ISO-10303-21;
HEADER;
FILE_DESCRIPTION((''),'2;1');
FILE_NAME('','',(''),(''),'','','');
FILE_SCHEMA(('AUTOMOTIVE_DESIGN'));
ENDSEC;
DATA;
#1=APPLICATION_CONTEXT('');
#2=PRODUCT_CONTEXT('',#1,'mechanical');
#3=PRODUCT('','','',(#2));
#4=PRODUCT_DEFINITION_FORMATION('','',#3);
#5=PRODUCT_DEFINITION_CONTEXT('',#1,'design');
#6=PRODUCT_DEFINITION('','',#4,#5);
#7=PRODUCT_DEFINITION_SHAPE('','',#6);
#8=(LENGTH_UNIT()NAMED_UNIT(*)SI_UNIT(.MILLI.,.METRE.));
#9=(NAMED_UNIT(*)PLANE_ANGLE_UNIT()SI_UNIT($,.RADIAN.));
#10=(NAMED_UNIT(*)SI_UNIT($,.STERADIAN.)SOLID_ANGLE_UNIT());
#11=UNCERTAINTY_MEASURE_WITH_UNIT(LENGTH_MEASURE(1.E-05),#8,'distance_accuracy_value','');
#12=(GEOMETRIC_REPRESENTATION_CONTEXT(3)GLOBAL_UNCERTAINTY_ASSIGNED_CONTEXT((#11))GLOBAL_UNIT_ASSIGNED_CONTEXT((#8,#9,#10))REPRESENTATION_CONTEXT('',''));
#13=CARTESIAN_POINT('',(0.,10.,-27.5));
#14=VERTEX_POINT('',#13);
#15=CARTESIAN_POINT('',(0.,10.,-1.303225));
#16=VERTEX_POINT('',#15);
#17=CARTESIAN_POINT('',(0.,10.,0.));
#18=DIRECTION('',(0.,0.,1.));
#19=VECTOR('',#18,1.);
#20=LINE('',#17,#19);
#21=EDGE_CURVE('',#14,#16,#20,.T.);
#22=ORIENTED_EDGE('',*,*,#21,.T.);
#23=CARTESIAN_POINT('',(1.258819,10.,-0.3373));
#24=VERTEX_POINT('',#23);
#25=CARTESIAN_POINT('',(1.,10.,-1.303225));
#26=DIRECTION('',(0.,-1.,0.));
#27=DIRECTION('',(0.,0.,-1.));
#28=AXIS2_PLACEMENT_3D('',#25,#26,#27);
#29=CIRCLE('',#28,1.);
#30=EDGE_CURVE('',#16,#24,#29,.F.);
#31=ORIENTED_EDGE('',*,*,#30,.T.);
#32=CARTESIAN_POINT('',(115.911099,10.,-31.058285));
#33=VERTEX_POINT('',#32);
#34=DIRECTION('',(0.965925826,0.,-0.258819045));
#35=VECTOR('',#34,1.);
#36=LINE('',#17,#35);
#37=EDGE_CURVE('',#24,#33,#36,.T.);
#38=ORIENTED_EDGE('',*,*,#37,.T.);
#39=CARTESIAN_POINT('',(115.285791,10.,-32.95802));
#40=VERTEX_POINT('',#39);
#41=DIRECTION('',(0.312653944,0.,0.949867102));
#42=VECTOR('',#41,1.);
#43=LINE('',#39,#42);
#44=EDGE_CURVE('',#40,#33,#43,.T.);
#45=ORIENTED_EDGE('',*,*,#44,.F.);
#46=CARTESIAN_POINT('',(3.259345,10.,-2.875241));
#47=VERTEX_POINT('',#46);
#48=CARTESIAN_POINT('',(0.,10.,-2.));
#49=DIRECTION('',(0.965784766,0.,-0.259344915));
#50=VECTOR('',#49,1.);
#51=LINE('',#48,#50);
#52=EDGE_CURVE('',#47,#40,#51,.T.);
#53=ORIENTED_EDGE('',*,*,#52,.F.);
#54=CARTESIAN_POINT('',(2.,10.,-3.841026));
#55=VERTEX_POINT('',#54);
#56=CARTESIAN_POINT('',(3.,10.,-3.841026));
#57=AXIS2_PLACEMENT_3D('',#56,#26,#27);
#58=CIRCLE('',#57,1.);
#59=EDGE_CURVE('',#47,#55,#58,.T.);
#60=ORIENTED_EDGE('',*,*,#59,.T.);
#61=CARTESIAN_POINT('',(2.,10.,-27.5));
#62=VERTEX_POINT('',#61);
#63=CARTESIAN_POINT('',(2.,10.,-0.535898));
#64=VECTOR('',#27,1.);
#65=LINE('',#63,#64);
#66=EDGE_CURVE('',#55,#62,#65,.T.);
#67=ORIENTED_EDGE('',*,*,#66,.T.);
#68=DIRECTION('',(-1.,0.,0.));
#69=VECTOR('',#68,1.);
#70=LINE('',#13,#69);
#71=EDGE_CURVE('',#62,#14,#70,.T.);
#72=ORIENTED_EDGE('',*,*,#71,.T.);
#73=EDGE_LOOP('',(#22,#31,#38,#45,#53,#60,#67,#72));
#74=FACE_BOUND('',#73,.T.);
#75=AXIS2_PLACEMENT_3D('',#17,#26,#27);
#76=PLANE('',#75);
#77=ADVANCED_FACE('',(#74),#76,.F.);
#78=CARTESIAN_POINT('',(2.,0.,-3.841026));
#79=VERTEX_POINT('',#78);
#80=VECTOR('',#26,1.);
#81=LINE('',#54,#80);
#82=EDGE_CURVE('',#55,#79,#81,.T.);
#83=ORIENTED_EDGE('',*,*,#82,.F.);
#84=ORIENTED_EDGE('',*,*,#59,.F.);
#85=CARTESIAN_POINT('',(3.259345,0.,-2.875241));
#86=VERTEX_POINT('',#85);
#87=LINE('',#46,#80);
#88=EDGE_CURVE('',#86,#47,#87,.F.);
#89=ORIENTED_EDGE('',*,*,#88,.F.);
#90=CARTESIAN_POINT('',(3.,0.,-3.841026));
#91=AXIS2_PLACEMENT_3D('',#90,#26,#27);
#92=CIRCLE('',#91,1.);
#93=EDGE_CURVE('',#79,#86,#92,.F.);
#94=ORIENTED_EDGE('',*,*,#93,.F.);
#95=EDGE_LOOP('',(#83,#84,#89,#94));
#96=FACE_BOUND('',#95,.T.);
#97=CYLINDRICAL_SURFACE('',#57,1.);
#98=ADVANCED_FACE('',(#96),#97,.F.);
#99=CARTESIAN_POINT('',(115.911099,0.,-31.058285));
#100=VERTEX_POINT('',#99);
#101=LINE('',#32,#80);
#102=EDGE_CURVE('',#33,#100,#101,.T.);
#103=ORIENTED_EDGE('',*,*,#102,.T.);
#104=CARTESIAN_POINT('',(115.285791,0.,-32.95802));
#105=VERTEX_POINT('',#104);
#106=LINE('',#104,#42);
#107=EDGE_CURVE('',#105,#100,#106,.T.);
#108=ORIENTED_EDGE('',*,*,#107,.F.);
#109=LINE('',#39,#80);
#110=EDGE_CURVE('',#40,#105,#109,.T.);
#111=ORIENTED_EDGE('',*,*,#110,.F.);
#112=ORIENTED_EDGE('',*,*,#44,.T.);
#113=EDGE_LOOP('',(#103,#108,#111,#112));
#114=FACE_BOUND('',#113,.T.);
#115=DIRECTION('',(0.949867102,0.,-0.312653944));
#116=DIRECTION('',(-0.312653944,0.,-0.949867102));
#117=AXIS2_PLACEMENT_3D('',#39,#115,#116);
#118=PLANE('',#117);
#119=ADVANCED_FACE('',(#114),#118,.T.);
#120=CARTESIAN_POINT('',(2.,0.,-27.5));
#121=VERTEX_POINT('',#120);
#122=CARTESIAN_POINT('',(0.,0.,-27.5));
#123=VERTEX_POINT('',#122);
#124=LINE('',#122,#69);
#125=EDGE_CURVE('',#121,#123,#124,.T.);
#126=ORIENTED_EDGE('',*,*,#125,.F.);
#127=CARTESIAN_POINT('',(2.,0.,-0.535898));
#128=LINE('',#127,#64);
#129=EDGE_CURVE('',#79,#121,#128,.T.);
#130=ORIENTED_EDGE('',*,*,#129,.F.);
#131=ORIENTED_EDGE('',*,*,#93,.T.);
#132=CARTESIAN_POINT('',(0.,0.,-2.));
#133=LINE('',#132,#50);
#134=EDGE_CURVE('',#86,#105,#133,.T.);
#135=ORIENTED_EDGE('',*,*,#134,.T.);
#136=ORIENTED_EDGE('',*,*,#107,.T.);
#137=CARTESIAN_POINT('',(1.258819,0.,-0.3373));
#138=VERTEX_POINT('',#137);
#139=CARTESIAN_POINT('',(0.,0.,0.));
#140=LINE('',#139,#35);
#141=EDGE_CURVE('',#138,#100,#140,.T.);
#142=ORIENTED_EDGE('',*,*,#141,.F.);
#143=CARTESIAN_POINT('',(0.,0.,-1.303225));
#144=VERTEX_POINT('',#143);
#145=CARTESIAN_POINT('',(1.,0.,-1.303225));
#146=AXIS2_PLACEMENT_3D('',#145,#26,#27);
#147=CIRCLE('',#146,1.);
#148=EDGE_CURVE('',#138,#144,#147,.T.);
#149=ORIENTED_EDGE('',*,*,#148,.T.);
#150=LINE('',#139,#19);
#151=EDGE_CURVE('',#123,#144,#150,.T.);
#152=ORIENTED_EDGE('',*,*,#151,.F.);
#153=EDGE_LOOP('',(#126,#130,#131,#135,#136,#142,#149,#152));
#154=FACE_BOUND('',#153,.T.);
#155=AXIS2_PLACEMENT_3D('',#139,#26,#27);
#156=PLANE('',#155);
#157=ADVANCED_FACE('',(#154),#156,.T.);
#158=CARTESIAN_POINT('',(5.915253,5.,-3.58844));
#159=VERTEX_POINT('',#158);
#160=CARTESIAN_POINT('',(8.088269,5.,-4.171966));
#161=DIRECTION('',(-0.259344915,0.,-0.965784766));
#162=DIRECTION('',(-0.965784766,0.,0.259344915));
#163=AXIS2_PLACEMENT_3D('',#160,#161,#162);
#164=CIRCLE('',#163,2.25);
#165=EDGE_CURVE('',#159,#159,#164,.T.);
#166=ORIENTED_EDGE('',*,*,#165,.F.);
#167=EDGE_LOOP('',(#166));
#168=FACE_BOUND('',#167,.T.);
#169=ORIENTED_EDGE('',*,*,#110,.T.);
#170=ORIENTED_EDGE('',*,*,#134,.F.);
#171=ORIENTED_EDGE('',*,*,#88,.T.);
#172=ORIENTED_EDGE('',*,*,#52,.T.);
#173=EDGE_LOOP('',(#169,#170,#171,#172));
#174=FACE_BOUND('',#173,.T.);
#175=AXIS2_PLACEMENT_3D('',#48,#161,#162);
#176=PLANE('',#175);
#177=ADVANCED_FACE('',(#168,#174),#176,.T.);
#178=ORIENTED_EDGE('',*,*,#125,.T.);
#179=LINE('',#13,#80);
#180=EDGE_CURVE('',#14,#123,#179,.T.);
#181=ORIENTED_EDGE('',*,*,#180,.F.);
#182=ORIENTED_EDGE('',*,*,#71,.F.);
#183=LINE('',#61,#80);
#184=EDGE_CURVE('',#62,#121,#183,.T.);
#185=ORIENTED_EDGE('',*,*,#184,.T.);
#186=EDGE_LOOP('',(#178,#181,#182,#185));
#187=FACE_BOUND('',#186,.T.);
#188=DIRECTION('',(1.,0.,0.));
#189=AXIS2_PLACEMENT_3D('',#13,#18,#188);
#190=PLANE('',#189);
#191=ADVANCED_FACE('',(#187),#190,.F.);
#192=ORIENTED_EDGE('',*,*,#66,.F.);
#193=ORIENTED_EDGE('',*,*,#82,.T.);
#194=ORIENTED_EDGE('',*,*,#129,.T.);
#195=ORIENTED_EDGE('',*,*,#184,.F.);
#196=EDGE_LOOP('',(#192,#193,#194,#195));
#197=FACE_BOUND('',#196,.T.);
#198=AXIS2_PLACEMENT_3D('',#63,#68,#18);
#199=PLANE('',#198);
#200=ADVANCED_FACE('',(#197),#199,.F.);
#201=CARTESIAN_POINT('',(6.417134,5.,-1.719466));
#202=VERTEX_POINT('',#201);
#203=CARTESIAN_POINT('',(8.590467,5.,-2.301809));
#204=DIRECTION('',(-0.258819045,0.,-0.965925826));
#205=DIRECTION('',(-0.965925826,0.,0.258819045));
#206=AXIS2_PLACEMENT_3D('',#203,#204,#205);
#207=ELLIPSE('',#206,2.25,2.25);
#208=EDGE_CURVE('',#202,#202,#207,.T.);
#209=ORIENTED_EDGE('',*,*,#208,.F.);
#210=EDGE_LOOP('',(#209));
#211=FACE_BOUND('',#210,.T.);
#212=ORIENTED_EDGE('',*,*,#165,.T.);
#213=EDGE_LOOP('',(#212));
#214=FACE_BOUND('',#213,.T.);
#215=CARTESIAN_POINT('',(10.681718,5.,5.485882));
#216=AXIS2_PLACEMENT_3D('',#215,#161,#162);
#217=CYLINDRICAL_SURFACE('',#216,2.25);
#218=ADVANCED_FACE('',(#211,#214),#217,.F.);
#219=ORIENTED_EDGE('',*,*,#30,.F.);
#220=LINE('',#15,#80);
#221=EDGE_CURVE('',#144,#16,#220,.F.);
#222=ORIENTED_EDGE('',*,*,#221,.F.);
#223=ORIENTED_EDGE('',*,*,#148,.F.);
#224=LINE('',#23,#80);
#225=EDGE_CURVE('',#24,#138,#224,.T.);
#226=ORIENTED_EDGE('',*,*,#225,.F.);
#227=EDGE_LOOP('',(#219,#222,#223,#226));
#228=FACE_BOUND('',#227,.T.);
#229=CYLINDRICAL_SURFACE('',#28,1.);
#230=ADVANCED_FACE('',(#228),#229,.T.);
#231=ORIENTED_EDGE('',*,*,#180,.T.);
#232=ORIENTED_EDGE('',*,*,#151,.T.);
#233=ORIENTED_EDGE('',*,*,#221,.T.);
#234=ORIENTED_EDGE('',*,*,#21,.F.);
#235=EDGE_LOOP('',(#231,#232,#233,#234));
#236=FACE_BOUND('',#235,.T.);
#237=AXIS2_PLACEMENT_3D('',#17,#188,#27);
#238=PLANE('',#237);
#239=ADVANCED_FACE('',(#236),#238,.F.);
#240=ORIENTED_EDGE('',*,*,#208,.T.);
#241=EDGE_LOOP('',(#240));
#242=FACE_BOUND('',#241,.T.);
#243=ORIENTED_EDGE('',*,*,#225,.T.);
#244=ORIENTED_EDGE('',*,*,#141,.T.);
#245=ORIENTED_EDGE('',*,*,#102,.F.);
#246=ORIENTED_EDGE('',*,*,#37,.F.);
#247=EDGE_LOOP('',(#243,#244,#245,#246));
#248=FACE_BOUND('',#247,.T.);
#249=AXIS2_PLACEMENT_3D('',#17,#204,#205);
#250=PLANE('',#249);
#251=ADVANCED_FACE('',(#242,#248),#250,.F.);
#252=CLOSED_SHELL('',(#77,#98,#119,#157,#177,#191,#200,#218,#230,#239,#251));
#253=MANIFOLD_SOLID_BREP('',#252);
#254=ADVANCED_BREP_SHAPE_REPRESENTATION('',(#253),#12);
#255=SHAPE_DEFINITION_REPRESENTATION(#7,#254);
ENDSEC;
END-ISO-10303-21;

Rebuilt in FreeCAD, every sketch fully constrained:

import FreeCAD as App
import Part
import Sketcher
Q = App.Units.Quantity


def edges_at(feature, points):
    """Names of the edges that pass closest to the given points."""
    edges = feature.Shape.Edges
    near = lambda p: min(range(len(edges)), key=lambda i: edges[i].distToShape(Part.Vertex(*p))[0])
    return sorted({f"Edge{near(p) + 1}" for p in points})

doc = App.newDocument("Part")
body = doc.addObject("PartDesign::Body", "Body")

# Sketch on XZ plane
sketch1 = body.newObject("Sketcher::SketchObject", "Sketch")
sketch1.AttachmentSupport = (doc.getObject("XZ_Plane"), [""])
sketch1.MapMode = "FlatFace"
sketch1.addGeometry([
    Part.LineSegment(App.Vector(0, 0, 0), App.Vector(2, -0.5, 0)),
    Part.LineSegment(App.Vector(2, -0.5, 0), App.Vector(2, -27.5, 0)),
    Part.LineSegment(App.Vector(2, -27.5, 0), App.Vector(0, -27.5, 0)),
    Part.LineSegment(App.Vector(0, -27.5, 0), App.Vector(0, 0, 0)),
], False)
sketch1.addConstraint([
    Sketcher.Constraint("Coincident", 0, 2, 1, 1),
    Sketcher.Constraint("Coincident", 1, 2, 2, 1),
    Sketcher.Constraint("Coincident", 2, 2, 3, 1),
    Sketcher.Constraint("Coincident", 3, 2, 0, 1),
    Sketcher.Constraint("Vertical", 1),
    Sketcher.Constraint("Horizontal", 2),
    Sketcher.Constraint("Vertical", 3),
    Sketcher.Constraint("Coincident", 3, 2, -1, 1),
    Sketcher.Constraint("DistanceX", 2, 2, 2, 1, Q("2 mm")),
    Sketcher.Constraint("Angle", 0, Q("-15 deg")),
    Sketcher.Constraint("DistanceY", 3, 1, 3, 2, Q("27.5 mm")),
])
pad1 = body.newObject("PartDesign::Pad", "Pad")
pad1.Profile = sketch1
pad1.Length = 10
pad1.Reversed = True

# Sketch on XZ plane
sketch2 = body.newObject("Sketcher::SketchObject", "Sketch001")
sketch2.AttachmentSupport = (doc.getObject("XZ_Plane"), [""])
sketch2.MapMode = "FlatFace"
sketch2.addGeometry([
    Part.LineSegment(App.Vector(115.9, -31.1, 0), App.Vector(0, 0, 0)),
    Part.LineSegment(App.Vector(0, 0, 0), App.Vector(0, -2, 0)),
    Part.LineSegment(App.Vector(0, -2, 0), App.Vector(115.3, -33, 0)),
    Part.LineSegment(App.Vector(115.3, -33, 0), App.Vector(115.9, -31.1, 0)),
], False)
sketch2.addConstraint([
    Sketcher.Constraint("Coincident", 0, 2, 1, 1),
    Sketcher.Constraint("Coincident", 1, 2, 2, 1),
    Sketcher.Constraint("Coincident", 2, 2, 3, 1),
    Sketcher.Constraint("Coincident", 3, 2, 0, 1),
    Sketcher.Constraint("Vertical", 1),
    Sketcher.Constraint("Coincident", 0, 2, -1, 1),
    Sketcher.Constraint("DistanceY", 1, 2, 1, 1, Q("2 mm")),
    Sketcher.Constraint("Angle", 0, Q("165 deg")),
    Sketcher.Constraint("Distance", 0, Q("120 mm")),
    Sketcher.Constraint("Distance", 3, Q("2 mm")),
    Sketcher.Constraint("DistanceX", -1, 1, 2, 2, Q("115.285791 mm")),
])
pad2 = body.newObject("PartDesign::Pad", "Pad001")
pad2.Profile = sketch2
pad2.Length = 10
pad2.Reversed = True
doc.recompute()

fillet = body.newObject("PartDesign::Fillet", "Fillet")
fillet.Base = (pad2, edges_at(pad2, [(2, 5, -2.537), (0, 5, 0)]))
fillet.Radius = 1

# Sketch on an angled plane
sketch3 = body.newObject("Sketcher::SketchObject", "Sketch002")
sketch3.Placement = App.Placement(App.Vector(-0.500943, 0, -1.86548), App.Rotation(App.Vector(-0.965784766, 0, 0.259344915), App.Vector(0, 0.999999999, 0), App.Vector(-0.259344915, 0, -0.965784766), "ZXY"))
sketch3.addGeometry(Part.Circle(App.Vector(-8.9, 5, 0), App.Vector(0, 0, 1), 2.2), False)
sketch3.addConstraint([
    Sketcher.Constraint("Diameter", 0, Q("4.5 mm")),
    Sketcher.Constraint("DistanceY", -1, 1, 0, 3, Q("5 mm")),
    Sketcher.Constraint("DistanceX", 0, 3, -1, 1, Q("8.893505 mm")),
])
pocket1 = body.newObject("PartDesign::Pocket", "Pocket")
pocket1.Profile = sketch3
pocket1.Length = 10

doc.recompute()
